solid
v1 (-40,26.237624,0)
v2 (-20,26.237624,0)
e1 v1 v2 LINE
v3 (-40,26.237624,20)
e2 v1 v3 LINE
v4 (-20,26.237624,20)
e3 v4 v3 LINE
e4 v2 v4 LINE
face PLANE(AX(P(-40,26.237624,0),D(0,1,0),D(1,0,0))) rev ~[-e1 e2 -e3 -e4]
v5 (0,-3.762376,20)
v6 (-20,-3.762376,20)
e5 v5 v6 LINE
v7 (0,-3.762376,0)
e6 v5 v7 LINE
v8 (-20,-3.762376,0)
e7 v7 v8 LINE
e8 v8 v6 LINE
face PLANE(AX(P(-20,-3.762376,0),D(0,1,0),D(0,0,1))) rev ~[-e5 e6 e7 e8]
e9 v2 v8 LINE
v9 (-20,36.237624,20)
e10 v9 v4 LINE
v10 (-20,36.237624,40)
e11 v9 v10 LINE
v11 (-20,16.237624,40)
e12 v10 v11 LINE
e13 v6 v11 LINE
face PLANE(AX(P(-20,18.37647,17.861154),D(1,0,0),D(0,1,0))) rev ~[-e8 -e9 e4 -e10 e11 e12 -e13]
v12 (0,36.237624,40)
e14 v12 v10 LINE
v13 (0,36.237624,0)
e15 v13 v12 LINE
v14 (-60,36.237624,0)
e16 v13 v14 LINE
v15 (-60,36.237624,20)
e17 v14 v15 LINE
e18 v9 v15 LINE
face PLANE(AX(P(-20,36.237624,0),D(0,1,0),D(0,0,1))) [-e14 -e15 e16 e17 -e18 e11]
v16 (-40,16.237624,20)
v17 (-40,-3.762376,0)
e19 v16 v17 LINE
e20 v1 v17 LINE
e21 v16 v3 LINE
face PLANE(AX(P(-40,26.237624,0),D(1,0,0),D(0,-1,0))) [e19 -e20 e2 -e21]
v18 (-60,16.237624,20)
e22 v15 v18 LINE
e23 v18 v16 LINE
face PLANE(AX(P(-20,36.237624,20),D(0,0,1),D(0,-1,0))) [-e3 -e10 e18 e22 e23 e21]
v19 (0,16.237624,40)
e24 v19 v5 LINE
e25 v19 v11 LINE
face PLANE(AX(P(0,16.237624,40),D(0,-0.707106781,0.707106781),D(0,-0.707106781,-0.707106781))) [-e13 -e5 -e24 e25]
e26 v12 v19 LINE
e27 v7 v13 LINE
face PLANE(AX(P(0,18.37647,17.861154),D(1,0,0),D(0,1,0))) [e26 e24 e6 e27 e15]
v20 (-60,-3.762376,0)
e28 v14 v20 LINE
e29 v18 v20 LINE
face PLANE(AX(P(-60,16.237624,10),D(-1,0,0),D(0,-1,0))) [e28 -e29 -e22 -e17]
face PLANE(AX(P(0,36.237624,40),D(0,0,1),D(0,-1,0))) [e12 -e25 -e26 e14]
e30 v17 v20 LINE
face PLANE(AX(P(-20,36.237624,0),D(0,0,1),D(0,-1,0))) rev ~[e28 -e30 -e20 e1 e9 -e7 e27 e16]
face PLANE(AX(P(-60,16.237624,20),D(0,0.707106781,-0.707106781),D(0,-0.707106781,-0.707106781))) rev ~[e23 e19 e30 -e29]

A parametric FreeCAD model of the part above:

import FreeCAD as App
import Part
import Sketcher
Q = App.Units.Quantity

doc = App.newDocument("Part")
body = doc.addObject("PartDesign::Body", "Body")

# Sketch on YZ plane
sketch1 = body.newObject("Sketcher::SketchObject", "Sketch")
sketch1.AttachmentSupport = (doc.getObject("YZ_Plane"), [""])
sketch1.MapMode = "FlatFace"
sketch1.addGeometry([
    Part.LineSegment(App.Vector(-4, 0, 0), App.Vector(36, 0, 0)),  # 0
    Part.LineSegment(App.Vector(36, 0, 0), App.Vector(36, 40, 0)),  # 1
    Part.LineSegment(App.Vector(36, 40, 0), App.Vector(16, 40, 0)),  # 2
    Part.LineSegment(App.Vector(16, 40, 0), App.Vector(-4, 20, 0)),  # 3
    Part.LineSegment(App.Vector(-4, 20, 0), App.Vector(-4, 0, 0)),  # 4
], False)
sketch1.addConstraint([
    Sketcher.Constraint("Coincident", 0, 2, 1, 1),
    Sketcher.Constraint("Coincident", 1, 2, 2, 1),
    Sketcher.Constraint("Coincident", 2, 2, 3, 1),
    Sketcher.Constraint("Coincident", 3, 2, 4, 1),
    Sketcher.Constraint("Coincident", 4, 2, 0, 1),
    Sketcher.Constraint("Horizontal", 0),
    Sketcher.Constraint("Vertical", 1),
    Sketcher.Constraint("Horizontal", 2),
    Sketcher.Constraint("Vertical", 4),
    Sketcher.Constraint("PointOnObject", 0, 2, -1),
    Sketcher.Constraint("Equal", 0, 1),
    Sketcher.Constraint("Equal", 2, 4),
    Sketcher.Constraint("DistanceX", 0, 1, 0, 2, Q("40 mm")),
    Sketcher.Constraint("DistanceX", 2, 2, 2, 1, Q("20 mm")),
    Sketcher.Constraint("DistanceX", -1, 1, 0, 2, Q("36.237624 mm")),
])
pad1 = body.newObject("PartDesign::Pad", "Pad")
pad1.Profile = sketch1
pad1.Length = 20
pad1.Reversed = True

# Sketch on YZ plane
sketch2 = body.newObject("Sketcher::SketchObject", "Sketch001")
sketch2.AttachmentSupport = (doc.getObject("YZ_Plane"), [""])
sketch2.MapMode = "FlatFace"
sketch2.AttachmentOffset = App.Placement(App.Vector(0, 0, -20), App.Rotation())
sketch2.addGeometry([
    Part.LineSegment(App.Vector(36, 20, 0), App.Vector(36, 0, 0)),
    Part.LineSegment(App.Vector(36, 0, 0), App.Vector(-4, 0, 0)),
    Part.LineSegment(App.Vector(-4, 0, 0), App.Vector(-4, 20, 0)),
    Part.LineSegment(App.Vector(-4, 20, 0), App.Vector(36, 20, 0)),
], False)
sketch2.addConstraint([
    Sketcher.Constraint("Coincident", 0, 2, 1, 1),
    Sketcher.Constraint("Coincident", 1, 2, 2, 1),
    Sketcher.Constraint("Coincident", 2, 2, 3, 1),
    Sketcher.Constraint("Coincident", 3, 2, 0, 1),
    Sketcher.Constraint("Vertical", 0),
    Sketcher.Constraint("Horizontal", 1),
    Sketcher.Constraint("Vertical", 2),
    Sketcher.Constraint("Horizontal", 3),
    Sketcher.Constraint("PointOnObject", 0, 2, -1),
    Sketcher.Constraint("DistanceX", 1, 2, 1, 1, Q("40 mm")),
    Sketcher.Constraint("DistanceY", 0, 2, 0, 1, Q("20 mm")),
    Sketcher.Constraint("DistanceX", -1, 1, 0, 2, Q("36.237624 mm")),
])
pad2 = body.newObject("PartDesign::Pad", "Pad001")
pad2.Profile = sketch2
pad2.Length = 40
pad2.Reversed = True

# Sketch on YZ plane
sketch3 = body.newObject("Sketcher::SketchObject", "Sketch002")
sketch3.AttachmentSupport = (doc.getObject("YZ_Plane"), [""])
sketch3.MapMode = "FlatFace"
sketch3.AttachmentOffset = App.Placement(App.Vector(0, 0, -60), App.Rotation())
sketch3.addGeometry([
    Part.LineSegment(App.Vector(-4, 20, 0), App.Vector(16, 20, 0)),
    Part.LineSegment(App.Vector(16, 20, 0), App.Vector(-4, 0, 0)),
    Part.LineSegment(App.Vector(-4, 0, 0), App.Vector(-4, 20, 0)),
], False)
sketch3.addConstraint([
    Sketcher.Constraint("Coincident", 0, 2, 1, 1),
    Sketcher.Constraint("Coincident", 1, 2, 2, 1),
    Sketcher.Constraint("Coincident", 2, 2, 0, 1),
    Sketcher.Constraint("Horizontal", 0),
    Sketcher.Constraint("Vertical", 2),
    Sketcher.Constraint("PointOnObject", 1, 2, -1),
    Sketcher.Constraint("Equal", 0, 2),
    Sketcher.Constraint("DistanceX", 0, 1, 0, 2, Q("20 mm")),
    Sketcher.Constraint("DistanceX", -1, 1, 0, 2, Q("16.237624 mm")),
])
pocket1 = body.newObject("PartDesign::Pocket", "Pocket")
pocket1.Profile = sketch3
pocket1.Length = 40
pocket1.Reversed = True

# Sketch on XY plane
sketch4 = body.newObject("Sketcher::SketchObject", "Sketch003")
sketch4.AttachmentSupport = (doc.getObject("XY_Plane"), [""])
sketch4.MapMode = "FlatFace"
sketch4.addGeometry([
    Part.LineSegment(App.Vector(-40, -4, 0), App.Vector(-40, 26, 0)),
    Part.LineSegment(App.Vector(-40, 26, 0), App.Vector(-20, 26, 0)),
    Part.LineSegment(App.Vector(-20, 26, 0), App.Vector(-20, -4, 0)),
    Part.LineSegment(App.Vector(-20, -4, 0), App.Vector(-40, -4, 0)),
], False)
sketch4.addConstraint([
    Sketcher.Constraint("Coincident", 0, 2, 1, 1),
    Sketcher.Constraint("Coincident", 1, 2, 2, 1),
    Sketcher.Constraint("Coincident", 2, 2, 3, 1),
    Sketcher.Constraint("Coincident", 3, 2, 0, 1),
    Sketcher.Constraint("Vertical", 0),
    Sketcher.Constraint("Horizontal", 1),
    Sketcher.Constraint("Vertical", 2),
    Sketcher.Constraint("Horizontal", 3),
    Sketcher.Constraint("DistanceX", 1, 1, 1, 2, Q("20 mm")),
    Sketcher.Constraint("DistanceY", 0, 1, 0, 2, Q("30 mm")),
    Sketcher.Constraint("DistanceX", 0, 2, -1, 1, Q("40 mm")),
    Sketcher.Constraint("DistanceY", -1, 1, 0, 2, Q("26.237624 mm")),
])
pocket2 = body.newObject("PartDesign::Pocket", "Pocket001")
pocket2.Profile = sketch4
pocket2.Length = 25
pocket2.Reversed = True

doc.recompute()
